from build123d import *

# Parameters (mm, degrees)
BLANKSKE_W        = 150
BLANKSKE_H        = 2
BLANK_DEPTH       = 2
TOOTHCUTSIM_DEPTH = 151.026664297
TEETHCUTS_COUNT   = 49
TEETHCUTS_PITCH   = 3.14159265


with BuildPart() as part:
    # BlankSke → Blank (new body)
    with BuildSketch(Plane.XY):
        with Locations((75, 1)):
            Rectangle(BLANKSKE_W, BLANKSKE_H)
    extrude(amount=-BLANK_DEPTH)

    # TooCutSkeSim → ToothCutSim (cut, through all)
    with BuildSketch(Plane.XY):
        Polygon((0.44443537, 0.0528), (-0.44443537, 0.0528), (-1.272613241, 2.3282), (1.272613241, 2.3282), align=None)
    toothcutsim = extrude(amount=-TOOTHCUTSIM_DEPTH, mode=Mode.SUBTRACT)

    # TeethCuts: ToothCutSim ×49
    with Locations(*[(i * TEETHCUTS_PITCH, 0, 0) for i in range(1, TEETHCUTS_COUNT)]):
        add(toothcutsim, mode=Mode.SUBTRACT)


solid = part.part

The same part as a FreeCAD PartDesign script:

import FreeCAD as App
import Part
import Sketcher
from FreeCAD import Vector
Q = App.Units.Quantity


def add_polygon(sketch, points):
    """Adds a closed chain of lines whose ends are joined by coincident constraints."""
    first, n = sketch.GeometryCount, len(points)
    for a, b in zip(points, points[1:] + points[:1]):
        sketch.addGeometry(Part.LineSegment(App.Vector(*a, 0), App.Vector(*b, 0)), False)
    for i in range(n):
        sketch.addConstraint(Sketcher.Constraint("Coincident", first + i, 2, first + (i + 1) % n, 1))

doc = App.newDocument("Part")
body = doc.addObject("PartDesign::Body", "Body")

sketch1 = doc.addObject("Sketcher::SketchObject", "Sketch")
body.addObject(sketch1)
sketch1.AttachmentSupport = (doc.XY_Plane, [""])
sketch1.MapMode = "FlatFace"
add_polygon(sketch1, [(0, 2), (0, 0), (150, 0), (150, 2)])
sketch1.addConstraint(Sketcher.Constraint("Vertical", 0))
sketch1.addConstraint(Sketcher.Constraint("Horizontal", 1))
sketch1.addConstraint(Sketcher.Constraint("Vertical", 2))
sketch1.addConstraint(Sketcher.Constraint("Horizontal", 3))
sketch1.addConstraint(Sketcher.Constraint("Coincident", 0, 2, -1, 1))
sketch1.addConstraint(Sketcher.Constraint("DistanceX", 1, 1, 1, 2, Q("150 mm")))
sketch1.addConstraint(Sketcher.Constraint("DistanceY", 0, 2, 0, 1, Q("2 mm")))
pad1 = doc.addObject("PartDesign::Pad", "Pad")
body.addObject(pad1)
pad1.Profile = sketch1
pad1.Length = 2
pad1.Reversed = True

sketch2 = doc.addObject("Sketcher::SketchObject", "Sketch001")
body.addObject(sketch2)
sketch2.AttachmentSupport = (doc.XY_Plane, [""])
sketch2.MapMode = "FlatFace"
add_polygon(sketch2, [(-0.4, 0.1), (0.4, 0.1), (1.3, 2.3), (-1.3, 2.3)])
sketch2.addConstraint(Sketcher.Constraint("Horizontal", 0))
sketch2.addConstraint(Sketcher.Constraint("Horizontal", 2))
sketch2.addConstraint(Sketcher.Constraint("Equal", 1, 3))
sketch2.addConstraint(Sketcher.Constraint("Angle", 1, Q("70 deg")))
sketch2.addConstraint(Sketcher.Constraint("DistanceX", 0, 1, 0, 2, Q("0.888871 mm")))
sketch2.addConstraint(Sketcher.Constraint("DistanceY", -1, 1, 0, 2, Q("0.0528 mm")))
sketch2.addConstraint(Sketcher.Constraint("DistanceY", -1, 1, 1, 2, Q("2.3282 mm")))
sketch2.addConstraint(Sketcher.Constraint("DistanceX", -1, 1, 0, 2, Q("0.444435 mm")))
pocket1 = doc.addObject("PartDesign::Pocket", "Pocket")
body.addObject(pocket1)
pocket1.Profile = sketch2
pocket1.Type = "ThroughAll"
doc.recompute()

linearpattern = doc.addObject("PartDesign::LinearPattern", "LinearPattern")
body.addObject(linearpattern)
linearpattern.Originals = [pocket1]
linearpattern.Direction = (doc.X_Axis, [""])
linearpattern.Mode = "offset"
linearpattern.Offset = 3.141593
linearpattern.Occurrences = 49
body.Tip = linearpattern

doc.recompute()
